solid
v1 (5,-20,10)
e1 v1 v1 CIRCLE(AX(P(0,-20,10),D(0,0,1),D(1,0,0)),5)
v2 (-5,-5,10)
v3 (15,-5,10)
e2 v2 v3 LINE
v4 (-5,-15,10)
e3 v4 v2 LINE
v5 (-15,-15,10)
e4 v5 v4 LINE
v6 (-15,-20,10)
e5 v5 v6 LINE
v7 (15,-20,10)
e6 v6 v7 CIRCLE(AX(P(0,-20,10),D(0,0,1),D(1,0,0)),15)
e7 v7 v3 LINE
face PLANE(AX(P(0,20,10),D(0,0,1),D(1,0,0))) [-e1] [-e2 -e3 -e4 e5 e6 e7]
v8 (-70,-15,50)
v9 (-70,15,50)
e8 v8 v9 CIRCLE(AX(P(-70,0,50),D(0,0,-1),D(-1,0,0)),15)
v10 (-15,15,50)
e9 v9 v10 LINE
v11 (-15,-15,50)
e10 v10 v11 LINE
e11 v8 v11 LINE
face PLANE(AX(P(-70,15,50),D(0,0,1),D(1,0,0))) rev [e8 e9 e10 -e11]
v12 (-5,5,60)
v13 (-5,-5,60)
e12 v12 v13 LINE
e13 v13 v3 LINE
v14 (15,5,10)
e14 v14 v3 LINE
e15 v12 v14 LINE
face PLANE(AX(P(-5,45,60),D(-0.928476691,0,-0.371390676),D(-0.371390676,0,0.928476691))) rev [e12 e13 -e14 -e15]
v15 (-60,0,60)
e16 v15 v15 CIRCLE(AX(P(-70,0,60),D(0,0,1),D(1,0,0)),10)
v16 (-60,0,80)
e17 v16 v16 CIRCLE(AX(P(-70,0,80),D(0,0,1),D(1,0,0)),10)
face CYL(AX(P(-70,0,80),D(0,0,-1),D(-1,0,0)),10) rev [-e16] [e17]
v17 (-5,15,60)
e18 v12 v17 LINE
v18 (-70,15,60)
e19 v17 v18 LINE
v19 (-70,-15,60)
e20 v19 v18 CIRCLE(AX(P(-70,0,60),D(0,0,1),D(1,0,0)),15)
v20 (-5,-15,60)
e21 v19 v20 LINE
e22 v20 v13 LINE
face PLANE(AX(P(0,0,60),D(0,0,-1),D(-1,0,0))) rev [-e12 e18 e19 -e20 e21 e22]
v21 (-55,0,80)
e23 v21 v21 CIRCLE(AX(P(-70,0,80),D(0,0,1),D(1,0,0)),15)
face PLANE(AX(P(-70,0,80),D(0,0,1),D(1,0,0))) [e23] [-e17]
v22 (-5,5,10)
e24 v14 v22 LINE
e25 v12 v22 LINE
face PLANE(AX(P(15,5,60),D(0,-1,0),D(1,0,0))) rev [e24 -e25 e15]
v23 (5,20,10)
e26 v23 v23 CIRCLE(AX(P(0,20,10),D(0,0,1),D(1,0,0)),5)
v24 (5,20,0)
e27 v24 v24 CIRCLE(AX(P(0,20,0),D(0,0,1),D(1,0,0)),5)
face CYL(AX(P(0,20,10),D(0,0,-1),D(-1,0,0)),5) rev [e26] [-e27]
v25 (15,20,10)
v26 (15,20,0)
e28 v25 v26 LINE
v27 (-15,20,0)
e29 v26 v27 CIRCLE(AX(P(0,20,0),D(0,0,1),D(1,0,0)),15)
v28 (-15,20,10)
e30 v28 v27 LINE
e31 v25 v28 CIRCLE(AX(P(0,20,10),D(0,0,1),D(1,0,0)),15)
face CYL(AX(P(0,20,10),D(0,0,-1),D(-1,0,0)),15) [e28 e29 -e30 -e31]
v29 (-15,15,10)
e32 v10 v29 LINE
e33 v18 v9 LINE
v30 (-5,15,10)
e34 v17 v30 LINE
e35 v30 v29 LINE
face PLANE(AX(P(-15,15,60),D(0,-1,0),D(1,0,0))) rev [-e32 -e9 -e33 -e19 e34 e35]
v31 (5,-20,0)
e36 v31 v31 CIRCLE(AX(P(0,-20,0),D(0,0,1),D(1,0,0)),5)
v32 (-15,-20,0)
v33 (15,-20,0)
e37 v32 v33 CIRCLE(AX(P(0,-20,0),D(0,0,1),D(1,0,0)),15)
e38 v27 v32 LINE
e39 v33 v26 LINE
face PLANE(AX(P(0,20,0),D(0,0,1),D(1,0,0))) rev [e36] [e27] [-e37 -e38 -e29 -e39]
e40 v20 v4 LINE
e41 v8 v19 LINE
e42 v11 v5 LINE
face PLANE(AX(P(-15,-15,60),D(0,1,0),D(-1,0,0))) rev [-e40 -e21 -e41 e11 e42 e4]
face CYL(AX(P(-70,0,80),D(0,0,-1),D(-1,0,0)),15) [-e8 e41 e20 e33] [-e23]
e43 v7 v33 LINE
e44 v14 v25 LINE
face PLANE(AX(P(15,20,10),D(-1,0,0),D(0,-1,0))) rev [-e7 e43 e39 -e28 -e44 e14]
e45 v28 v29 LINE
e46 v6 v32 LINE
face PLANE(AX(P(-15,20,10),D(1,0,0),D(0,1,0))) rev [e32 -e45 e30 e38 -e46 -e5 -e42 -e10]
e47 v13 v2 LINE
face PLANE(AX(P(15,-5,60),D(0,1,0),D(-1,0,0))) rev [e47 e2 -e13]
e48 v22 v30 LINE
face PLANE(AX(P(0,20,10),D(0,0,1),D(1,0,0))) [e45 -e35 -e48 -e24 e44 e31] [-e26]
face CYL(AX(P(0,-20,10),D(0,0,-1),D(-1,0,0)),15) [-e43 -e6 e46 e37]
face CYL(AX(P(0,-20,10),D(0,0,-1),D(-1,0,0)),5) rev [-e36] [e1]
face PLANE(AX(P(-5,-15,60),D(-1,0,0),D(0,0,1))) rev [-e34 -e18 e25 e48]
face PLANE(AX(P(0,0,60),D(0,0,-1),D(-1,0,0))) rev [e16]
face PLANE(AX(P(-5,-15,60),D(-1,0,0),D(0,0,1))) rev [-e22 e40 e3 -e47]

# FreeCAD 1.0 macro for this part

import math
import FreeCAD as App
import Part
import Sketcher

V = App.Vector

doc = App.newDocument("Part")
body = doc.addObject("PartDesign::Body", "Body")

# Sketch on XY plane
sketch1 = doc.addObject("Sketcher::SketchObject", "Sketch")
body.addObject(sketch1)
sketch1.AttachmentSupport = (doc.XY_Plane, [""])
sketch1.MapMode = "FlatFace"
sketch1.addGeometry(Part.LineSegment(V(15, -20, 0), V(15, 20, 0)), False)
sketch1.addGeometry(Part.ArcOfCircle(Part.Circle(V(0, 20, 0), V(0, 0, 1), 15), math.radians(0), math.radians(180)), False)
sketch1.addGeometry(Part.LineSegment(V(-15, 20, 0), V(-15, -20, 0)), False)
sketch1.addGeometry(Part.ArcOfCircle(Part.Circle(V(0, -20, 0), V(0, 0, 1), 15), math.radians(180), math.radians(360)), False)
sketch1.addGeometry(Part.Circle(V(0, -20, 0), V(0, 0, 1), 5), False)
sketch1.addGeometry(Part.Circle(V(0, 20, 0), V(0, 0, 1), 5), False)
sketch1.addConstraint(Sketcher.Constraint("Tangent", 0, 2, 1, 1))
sketch1.addConstraint(Sketcher.Constraint("Tangent", 1, 2, 2, 1))
sketch1.addConstraint(Sketcher.Constraint("Tangent", 2, 2, 3, 1))
sketch1.addConstraint(Sketcher.Constraint("Tangent", 3, 2, 0, 1))
sketch1.addConstraint(Sketcher.Constraint("Vertical", 0))
sketch1.addConstraint(Sketcher.Constraint("Vertical", 2))
sketch1.addConstraint(Sketcher.Constraint("Coincident", 4, 3, 3, 3))
sketch1.addConstraint(Sketcher.Constraint("Coincident", 5, 3, 1, 3))
sketch1.addConstraint(Sketcher.Constraint("Equal", 4, 5))
sketch1.addConstraint(Sketcher.Constraint("Symmetric", 1, 3, 3, 3, -1, 1))
sketch1.addConstraint(Sketcher.Constraint("Diameter", 4, 10.0))
sketch1.addConstraint(Sketcher.Constraint("Radius", 1, 15.0))
sketch1.addConstraint(Sketcher.Constraint("DistanceY", 0, 1, 0, 2, 40.0))
pad1 = doc.addObject("PartDesign::Pad", "Pad")
body.addObject(pad1)
pad1.Profile = sketch1
pad1.Length = 10

# Sketch on XY plane
sketch2 = doc.addObject("Sketcher::SketchObject", "Sketch001")
body.addObject(sketch2)
sketch2.AttachmentSupport = (doc.XY_Plane, [""])
sketch2.MapMode = "FlatFace"
sketch2.AttachmentOffset = App.Placement(V(0, 0, 10), App.Rotation())
sketch2.addGeometry(Part.LineSegment(V(-5, 5, 0), V(-5, -5, 0)), False)
sketch2.addGeometry(Part.LineSegment(V(-5, -5, 0), V(15, -5, 0)), False)
sketch2.addGeometry(Part.LineSegment(V(15, -5, 0), V(15, 5, 0)), False)
sketch2.addGeometry(Part.LineSegment(V(15, 5, 0), V(-5, 5, 0)), False)
sketch2.addConstraint(Sketcher.Constraint("Coincident", 0, 2, 1, 1))
sketch2.addConstraint(Sketcher.Constraint("Coincident", 1, 2, 2, 1))
sketch2.addConstraint(Sketcher.Constraint("Coincident", 2, 2, 3, 1))
sketch2.addConstraint(Sketcher.Constraint("Coincident", 3, 2, 0, 1))
sketch2.addConstraint(Sketcher.Constraint("Vertical", 0))
sketch2.addConstraint(Sketcher.Constraint("Horizontal", 1))
sketch2.addConstraint(Sketcher.Constraint("Vertical", 2))
sketch2.addConstraint(Sketcher.Constraint("Horizontal", 3))
sketch2.addConstraint(Sketcher.Constraint("DistanceX", 1, 1, 1, 2, 20.0))
sketch2.addConstraint(Sketcher.Constraint("DistanceY", 0, 2, 0, 1, 10.0))
sketch2.addConstraint(Sketcher.Constraint("DistanceX", 0, 2, -1, 1, 5.0))
sketch2.addConstraint(Sketcher.Constraint("DistanceY", 0, 2, -1, 1, 5.0))
pad2 = doc.addObject("PartDesign::Pad", "Pad001")
body.addObject(pad2)
pad2.Profile = sketch2
pad2.Length = 50

# Sketch on XZ plane
sketch3 = doc.addObject("Sketcher::SketchObject", "Sketch002")
body.addObject(sketch3)
sketch3.AttachmentSupport = (doc.XZ_Plane, [""])
sketch3.MapMode = "FlatFace"
sketch3.AttachmentOffset = App.Placement(V(0, 0, 5), App.Rotation())
sketch3.addGeometry(Part.LineSegment(V(-5, 60, 0), V(15, 10, 0)), False)
sketch3.addGeometry(Part.LineSegment(V(15, 10, 0), V(15, 60, 0)), False)
sketch3.addGeometry(Part.LineSegment(V(15, 60, 0), V(-5, 60, 0)), False)
sketch3.addConstraint(Sketcher.Constraint("Coincident", 0, 2, 1, 1))
sketch3.addConstraint(Sketcher.Constraint("Coincident", 1, 2, 2, 1))
sketch3.addConstraint(Sketcher.Constraint("Coincident", 2, 2, 0, 1))
sketch3.addConstraint(Sketcher.Constraint("Vertical", 1))
sketch3.addConstraint(Sketcher.Constraint("Horizontal", 2))
sketch3.addConstraint(Sketcher.Constraint("DistanceX", 2, 2, 2, 1, 20.0))
sketch3.addConstraint(Sketcher.Constraint("DistanceY", 1, 1, 1, 2, 50.0))
sketch3.addConstraint(Sketcher.Constraint("DistanceX", -1, 1, 0, 2, 15.0))
sketch3.addConstraint(Sketcher.Constraint("DistanceY", -1, 1, 0, 2, 10.0))
pocket1 = doc.addObject("PartDesign::Pocket", "Pocket")
body.addObject(pocket1)
pocket1.Profile = sketch3
pocket1.Length = 50

# Sketch on XY plane
sketch4 = doc.addObject("Sketcher::SketchObject", "Sketch003")
body.addObject(sketch4)
sketch4.AttachmentSupport = (doc.XY_Plane, [""])
sketch4.MapMode = "FlatFace"
sketch4.AttachmentOffset = App.Placement(V(0, 0, 10), App.Rotation())
sketch4.addGeometry(Part.LineSegment(V(-15, 15, 0), V(-15, -15, 0)), False)
sketch4.addGeometry(Part.LineSegment(V(-15, -15, 0), V(-5, -15, 0)), False)
sketch4.addGeometry(Part.LineSegment(V(-5, -15, 0), V(-5, 15, 0)), False)
sketch4.addGeometry(Part.LineSegment(V(-5, 15, 0), V(-15, 15, 0)), False)
sketch4.addConstraint(Sketcher.Constraint("Coincident", 0, 2, 1, 1))
sketch4.addConstraint(Sketcher.Constraint("Coincident", 1, 2, 2, 1))
sketch4.addConstraint(Sketcher.Constraint("Coincident", 2, 2, 3, 1))
sketch4.addConstraint(Sketcher.Constraint("Coincident", 3, 2, 0, 1))
sketch4.addConstraint(Sketcher.Constraint("Vertical", 0))
sketch4.addConstraint(Sketcher.Constraint("Horizontal", 1))
sketch4.addConstraint(Sketcher.Constraint("Vertical", 2))
sketch4.addConstraint(Sketcher.Constraint("Horizontal", 3))
sketch4.addConstraint(Sketcher.Constraint("DistanceX", 1, 1, 1, 2, 10.0))
sketch4.addConstraint(Sketcher.Constraint("DistanceY", 0, 2, 0, 1, 30.0))
sketch4.addConstraint(Sketcher.Constraint("DistanceX", 0, 2, -1, 1, 15.0))
sketch4.addConstraint(Sketcher.Constraint("DistanceY", 0, 2, -1, 1, 15.0))
pad3 = doc.addObject("PartDesign::Pad", "Pad002")
body.addObject(pad3)
pad3.Profile = sketch4
pad3.Length = 50

# Sketch on YZ plane
sketch5 = doc.addObject("Sketcher::SketchObject", "Sketch004")
body.addObject(sketch5)
sketch5.AttachmentSupport = (doc.YZ_Plane, [""])
sketch5.MapMode = "FlatFace"
sketch5.AttachmentOffset = App.Placement(V(0, 0, -15), App.Rotation())
sketch5.addGeometry(Part.LineSegment(V(15, 50, 0), V(-15, 50, 0)), False)
sketch5.addGeometry(Part.LineSegment(V(-15, 50, 0), V(-15, 60, 0)), False)
sketch5.addGeometry(Part.LineSegment(V(-15, 60, 0), V(15, 60, 0)), False)
sketch5.addGeometry(Part.LineSegment(V(15, 60, 0), V(15, 50, 0)), False)
sketch5.addConstraint(Sketcher.Constraint("Coincident", 0, 2, 1, 1))
sketch5.addConstraint(Sketcher.Constraint("Coincident", 1, 2, 2, 1))
sketch5.addConstraint(Sketcher.Constraint("Coincident", 2, 2, 3, 1))
sketch5.addConstraint(Sketcher.Constraint("Coincident", 3, 2, 0, 1))
sketch5.addConstraint(Sketcher.Constraint("Horizontal", 0))
sketch5.addConstraint(Sketcher.Constraint("Vertical", 1))
sketch5.addConstraint(Sketcher.Constraint("Horizontal", 2))
sketch5.addConstraint(Sketcher.Constraint("Vertical", 3))
sketch5.addConstraint(Sketcher.Constraint("DistanceX", 0, 2, 0, 1, 30.0))
sketch5.addConstraint(Sketcher.Constraint("DistanceY", 1, 1, 1, 2, 10.0))
sketch5.addConstraint(Sketcher.Constraint("DistanceX", 0, 2, -1, 1, 15.0))
sketch5.addConstraint(Sketcher.Constraint("DistanceY", -1, 1, 0, 2, 50.0))
pad4 = doc.addObject("PartDesign::Pad", "Pad003")
body.addObject(pad4)
pad4.Profile = sketch5
pad4.Length = 55
pad4.Reversed = True

# Sketch on XY plane
sketch6 = doc.addObject("Sketcher::SketchObject", "Sketch005")
body.addObject(sketch6)
sketch6.AttachmentSupport = (doc.XY_Plane, [""])
sketch6.MapMode = "FlatFace"
sketch6.AttachmentOffset = App.Placement(V(0, 0, 60), App.Rotation())
sketch6.addGeometry(Part.Circle(V(-70, 0, 0), V(0, 0, 1), 15), False)
sketch6.addGeometry(Part.Circle(V(-70, 0, 0), V(0, 0, 1), 10), False)
sketch6.addConstraint(Sketcher.Constraint("Coincident", 1, 3, 0, 3))
sketch6.addConstraint(Sketcher.Constraint("PointOnObject", 0, 3, -1))
sketch6.addConstraint(Sketcher.Constraint("Diameter", 0, 30.0))
sketch6.addConstraint(Sketcher.Constraint("Diameter", 1, 20.0))
sketch6.addConstraint(Sketcher.Constraint("DistanceX", 0, 3, -1, 1, 70.0))
pad5 = doc.addObject("PartDesign::Pad", "Pad004")
body.addObject(pad5)
pad5.Profile = sketch6
pad5.Length = 20

# Sketch on XY plane
sketch7 = doc.addObject("Sketcher::SketchObject", "Sketch006")
body.addObject(sketch7)
sketch7.AttachmentSupport = (doc.XY_Plane, [""])
sketch7.MapMode = "FlatFace"
sketch7.AttachmentOffset = App.Placement(V(0, 0, 50), App.Rotation())
sketch7.addGeometry(Part.Circle(V(-70, 0, 0), V(0, 0, 1), 15), False)
sketch7.addConstraint(Sketcher.Constraint("PointOnObject", 0, 3, -1))
sketch7.addConstraint(Sketcher.Constraint("Diameter", 0, 30.0))
sketch7.addConstraint(Sketcher.Constraint("DistanceX", 0, 3, -1, 1, 70.0))
pad6 = doc.addObject("PartDesign::Pad", "Pad005")
body.addObject(pad6)
pad6.Profile = sketch7
pad6.Length = 10

doc.recompute()
